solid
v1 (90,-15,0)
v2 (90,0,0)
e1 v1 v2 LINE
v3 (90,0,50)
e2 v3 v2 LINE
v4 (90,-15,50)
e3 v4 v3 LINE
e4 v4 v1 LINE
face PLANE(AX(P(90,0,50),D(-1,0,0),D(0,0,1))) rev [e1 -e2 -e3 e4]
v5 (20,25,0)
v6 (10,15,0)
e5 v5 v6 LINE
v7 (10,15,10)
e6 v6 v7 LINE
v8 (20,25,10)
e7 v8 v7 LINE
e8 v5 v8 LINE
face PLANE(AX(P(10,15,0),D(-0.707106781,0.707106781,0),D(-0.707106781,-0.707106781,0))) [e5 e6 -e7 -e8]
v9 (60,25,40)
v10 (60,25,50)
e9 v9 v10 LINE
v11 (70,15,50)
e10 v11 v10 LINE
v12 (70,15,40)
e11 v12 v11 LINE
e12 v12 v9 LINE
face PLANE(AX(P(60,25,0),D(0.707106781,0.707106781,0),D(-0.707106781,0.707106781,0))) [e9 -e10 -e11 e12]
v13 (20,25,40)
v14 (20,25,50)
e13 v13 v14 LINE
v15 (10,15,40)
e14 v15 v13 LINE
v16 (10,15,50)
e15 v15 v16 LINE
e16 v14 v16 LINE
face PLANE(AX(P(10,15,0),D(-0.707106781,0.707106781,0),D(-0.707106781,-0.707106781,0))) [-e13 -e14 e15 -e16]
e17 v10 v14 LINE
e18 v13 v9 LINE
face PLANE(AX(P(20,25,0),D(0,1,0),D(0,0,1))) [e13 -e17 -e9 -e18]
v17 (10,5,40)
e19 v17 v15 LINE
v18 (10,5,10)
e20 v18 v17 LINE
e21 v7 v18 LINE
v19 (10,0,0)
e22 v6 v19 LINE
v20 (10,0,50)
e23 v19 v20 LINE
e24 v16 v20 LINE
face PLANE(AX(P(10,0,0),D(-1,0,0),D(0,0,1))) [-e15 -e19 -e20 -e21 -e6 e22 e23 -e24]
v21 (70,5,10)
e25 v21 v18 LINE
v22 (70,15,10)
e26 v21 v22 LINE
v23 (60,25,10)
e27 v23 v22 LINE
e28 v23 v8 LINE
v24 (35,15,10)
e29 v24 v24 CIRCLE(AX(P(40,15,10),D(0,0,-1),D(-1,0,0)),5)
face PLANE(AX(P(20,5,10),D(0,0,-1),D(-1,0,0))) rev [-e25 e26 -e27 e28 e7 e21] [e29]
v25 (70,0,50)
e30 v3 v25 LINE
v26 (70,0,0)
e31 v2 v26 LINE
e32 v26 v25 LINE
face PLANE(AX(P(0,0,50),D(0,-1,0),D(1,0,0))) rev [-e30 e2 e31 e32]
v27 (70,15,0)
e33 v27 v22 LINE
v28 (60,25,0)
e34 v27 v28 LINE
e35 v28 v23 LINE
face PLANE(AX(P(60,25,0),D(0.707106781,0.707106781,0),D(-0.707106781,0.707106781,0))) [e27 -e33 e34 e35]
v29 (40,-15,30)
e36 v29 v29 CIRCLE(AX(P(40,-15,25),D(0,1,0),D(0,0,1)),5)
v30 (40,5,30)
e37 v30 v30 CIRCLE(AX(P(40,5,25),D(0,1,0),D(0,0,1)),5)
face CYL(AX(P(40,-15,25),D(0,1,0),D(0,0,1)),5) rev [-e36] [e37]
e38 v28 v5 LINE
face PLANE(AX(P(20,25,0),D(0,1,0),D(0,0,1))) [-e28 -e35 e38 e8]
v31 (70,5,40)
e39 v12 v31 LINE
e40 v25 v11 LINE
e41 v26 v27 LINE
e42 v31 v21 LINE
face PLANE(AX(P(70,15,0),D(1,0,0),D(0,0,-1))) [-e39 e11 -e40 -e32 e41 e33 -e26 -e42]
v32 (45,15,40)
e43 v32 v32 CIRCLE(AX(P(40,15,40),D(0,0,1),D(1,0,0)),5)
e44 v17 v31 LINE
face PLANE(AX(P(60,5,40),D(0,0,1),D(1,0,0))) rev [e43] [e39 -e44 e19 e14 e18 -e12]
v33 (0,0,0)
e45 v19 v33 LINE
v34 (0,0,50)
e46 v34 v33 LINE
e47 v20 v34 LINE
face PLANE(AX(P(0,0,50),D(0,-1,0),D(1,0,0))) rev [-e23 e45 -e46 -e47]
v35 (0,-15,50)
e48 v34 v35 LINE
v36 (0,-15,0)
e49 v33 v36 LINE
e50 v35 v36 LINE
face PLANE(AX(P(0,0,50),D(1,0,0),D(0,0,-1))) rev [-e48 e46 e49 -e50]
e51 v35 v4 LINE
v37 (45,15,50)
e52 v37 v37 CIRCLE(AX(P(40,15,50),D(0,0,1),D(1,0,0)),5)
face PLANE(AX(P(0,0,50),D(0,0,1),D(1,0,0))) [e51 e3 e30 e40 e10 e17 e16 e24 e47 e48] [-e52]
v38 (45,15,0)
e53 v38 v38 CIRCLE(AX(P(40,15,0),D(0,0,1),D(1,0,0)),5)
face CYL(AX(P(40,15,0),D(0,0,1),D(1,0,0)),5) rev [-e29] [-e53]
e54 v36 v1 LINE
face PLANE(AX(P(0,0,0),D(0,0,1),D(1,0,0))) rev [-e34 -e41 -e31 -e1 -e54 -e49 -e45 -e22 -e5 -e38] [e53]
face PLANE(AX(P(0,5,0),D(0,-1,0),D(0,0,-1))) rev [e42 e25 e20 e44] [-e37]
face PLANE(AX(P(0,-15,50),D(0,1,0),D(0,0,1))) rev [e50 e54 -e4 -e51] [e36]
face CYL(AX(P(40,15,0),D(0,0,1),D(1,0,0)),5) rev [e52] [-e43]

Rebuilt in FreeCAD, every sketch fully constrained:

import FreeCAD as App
import Part
import Sketcher


def add_polygon(sketch, points):
    """Adds a closed chain of lines whose ends are joined by coincident constraints."""
    first, n = sketch.GeometryCount, len(points)
    for a, b in zip(points, points[1:] + points[:1]):
        sketch.addGeometry(Part.LineSegment(App.Vector(*a, 0), App.Vector(*b, 0)), False)
    for i in range(n):
        sketch.addConstraint(Sketcher.Constraint("Coincident", first + i, 2, first + (i + 1) % n, 1))

doc = App.newDocument("Part")
body = doc.addObject("PartDesign::Body", "Body")

# Sketch on XY plane
sketch1 = body.newObject("Sketcher::SketchObject", "Sketch")
sketch1.AttachmentSupport = (doc.getObject("XY_Plane"), [""])
sketch1.MapMode = "FlatFace"
add_polygon(sketch1, [(0, 0), (0, -15), (90, -15), (90, 0)])  # lines 0-3
sketch1.addConstraint([
    Sketcher.Constraint("Vertical", 0),
    Sketcher.Constraint("Horizontal", 1),
    Sketcher.Constraint("Vertical", 2),
    Sketcher.Constraint("Horizontal", 3),
    Sketcher.Constraint("Coincident", 3, 2, -1, 1),
    Sketcher.Constraint("DistanceX", 1, 1, 1, 2, 90.0),
    Sketcher.Constraint("DistanceY", 0, 2, 0, 1, 15.0),
])
pad1 = body.newObject("PartDesign::Pad", "Pad")
pad1.Profile = sketch1
pad1.Length = 50

# Sketch on XY plane
sketch2 = body.newObject("Sketcher::SketchObject", "Sketch001")
sketch2.AttachmentSupport = (doc.getObject("XY_Plane"), [""])
sketch2.MapMode = "FlatFace"
sketch2.AttachmentOffset = App.Placement(App.Vector(0, 0, 50), App.Rotation())
add_polygon(sketch2, [(10, 15), (10, 0), (70, 0), (70, 15), (60, 25), (20, 25)])  # lines 0-5
sketch2.addConstraint([
    Sketcher.Constraint("Vertical", 0),
    Sketcher.Constraint("Horizontal", 1),
    Sketcher.Constraint("Vertical", 2),
    Sketcher.Constraint("Horizontal", 4),
    Sketcher.Constraint("PointOnObject", 0, 2, -1),
    Sketcher.Constraint("Perpendicular", 3, 5),
    Sketcher.Constraint("Horizontal", 2, 2, 5, 2),
    Sketcher.Constraint("Equal", 3, 5),
    Sketcher.Constraint("DistanceX", 1, 1, 1, 2, 60.0),
    Sketcher.Constraint("DistanceX", 4, 2, 4, 1, 40.0),
    Sketcher.Constraint("DistanceY", 0, 2, 0, 1, 15.0),
    Sketcher.Constraint("DistanceX", -1, 1, 0, 2, 10.0),
])
pad2 = body.newObject("PartDesign::Pad", "Pad001")
pad2.Profile = sketch2
pad2.Length = 50
pad2.Reversed = True

# Sketch on XZ plane
sketch3 = body.newObject("Sketcher::SketchObject", "Sketch002")
sketch3.AttachmentSupport = (doc.getObject("XZ_Plane"), [""])
sketch3.MapMode = "FlatFace"
sketch3.AttachmentOffset = App.Placement(App.Vector(0, 0, -25), App.Rotation())
add_polygon(sketch3, [(20, 10), (20, 40), (60, 40), (60, 10)])  # lines 0-3
sketch3.addConstraint([
    Sketcher.Constraint("Vertical", 0),
    Sketcher.Constraint("Horizontal", 1),
    Sketcher.Constraint("Vertical", 2),
    Sketcher.Constraint("Horizontal", 3),
    Sketcher.Constraint("DistanceX", 1, 1, 1, 2, 40.0),
    Sketcher.Constraint("DistanceY", 0, 1, 0, 2, 30.0),
    Sketcher.Constraint("DistanceX", -1, 1, 0, 2, 20.0),
    Sketcher.Constraint("DistanceY", -1, 1, 0, 2, 40.0),
])
pocket1 = body.newObject("PartDesign::Pocket", "Pocket")
pocket1.Profile = sketch3
pocket1.Length = 20
pocket1.Reversed = True

# Sketch on an angled plane
sketch4 = body.newObject("Sketcher::SketchObject", "Sketch003")
sketch4.Placement = App.Placement(App.Vector(42.5, 42.5, 0), App.Rotation(App.Vector(0, 0, -1), App.Vector(-0.707106781, 0.707106781, 0), App.Vector(0.707106781, 0.707106781, 0), "ZXY"))
add_polygon(sketch4, [(-40, -25), (-40, -39), (-10, -39), (-10, -25)])  # lines 0-3
sketch4.addConstraint([
    Sketcher.Constraint("Vertical", 0),
    Sketcher.Constraint("Horizontal", 1),
    Sketcher.Constraint("Vertical", 2),
    Sketcher.Constraint("Horizontal", 3),
    Sketcher.Constraint("DistanceX", 1, 1, 1, 2, 30.0),
    Sketcher.Constraint("DistanceX", 0, 2, -1, 1, 40.0),
    Sketcher.Constraint("DistanceY", 0, 2, 0, 1, 14.142136),
    Sketcher.Constraint("DistanceY", 0, 2, -1, 1, 38.890873),
])
pocket2 = body.newObject("PartDesign::Pocket", "Pocket001")
pocket2.Profile = sketch4
pocket2.Length = 14.142136

# Sketch on an angled plane
sketch5 = body.newObject("Sketcher::SketchObject", "Sketch004")
sketch5.Placement = App.Placement(App.Vector(42.5, 42.5, 0), App.Rotation(App.Vector(0, 0, -1), App.Vector(-0.707106781, 0.707106781, 0), App.Vector(0.707106781, 0.707106781, 0), "ZXY"))
add_polygon(sketch5, [(-40, -25), (-40, -39), (-10, -39), (-10, -25)])  # lines 0-3
sketch5.addConstraint([
    Sketcher.Constraint("Vertical", 0),
    Sketcher.Constraint("Horizontal", 1),
    Sketcher.Constraint("Vertical", 2),
    Sketcher.Constraint("Horizontal", 3),
    Sketcher.Constraint("DistanceX", 1, 1, 1, 2, 30.0),
    Sketcher.Constraint("DistanceX", 0, 2, -1, 1, 40.0),
    Sketcher.Constraint("DistanceY", 0, 2, 0, 1, 14.142136),
    Sketcher.Constraint("DistanceY", 0, 2, -1, 1, 38.890873),
])
pocket3 = body.newObject("PartDesign::Pocket", "Pocket002")
pocket3.Profile = sketch5
pocket3.Length = 90.791425
pocket3.Reversed = True

# Sketch on YZ plane
sketch6 = body.newObject("Sketcher::SketchObject", "Sketch005")
sketch6.AttachmentSupport = (doc.getObject("YZ_Plane"), [""])
sketch6.MapMode = "FlatFace"
sketch6.AttachmentOffset = App.Placement(App.Vector(0, 0, 70), App.Rotation())
add_polygon(sketch6, [(15, 40), (5, 40), (5, 10), (15, 10)])  # lines 0-3
sketch6.addConstraint([
    Sketcher.Constraint("Horizontal", 0),
    Sketcher.Constraint("Vertical", 1),
    Sketcher.Constraint("Horizontal", 2),
    Sketcher.Constraint("Vertical", 3),
    Sketcher.Constraint("DistanceX", 0, 2, 0, 1, 10.0),
    Sketcher.Constraint("DistanceY", 1, 2, 1, 1, 30.0),
    Sketcher.Constraint("DistanceX", -1, 1, 0, 2, 5.0),
    Sketcher.Constraint("DistanceY", -1, 1, 0, 2, 40.0),
])
pocket4 = body.newObject("PartDesign::Pocket", "Pocket003")
pocket4.Profile = sketch6
pocket4.Type = "ThroughAll"
pocket4.Midplane = True

# Sketch on an angled plane
sketch7 = body.newObject("Sketcher::SketchObject", "Sketch006")
sketch7.Placement = App.Placement(App.Vector(-2.5, 2.5, 0), App.Rotation(App.Vector(0, 0, 1), App.Vector(0.707106781, 0.707106781, 0), App.Vector(-0.707106781, 0.707106781, 0), "ZXY"))
add_polygon(sketch7, [(10, 32), (10, 18), (40, 18), (40, 32)])  # lines 0-3
sketch7.addConstraint([
    Sketcher.Constraint("Vertical", 0),
    Sketcher.Constraint("Horizontal", 1),
    Sketcher.Constraint("Vertical", 2),
    Sketcher.Constraint("Horizontal", 3),
    Sketcher.Constraint("DistanceX", 1, 1, 1, 2, 30.0),
    Sketcher.Constraint("DistanceX", -1, 1, 0, 2, 10.0),
    Sketcher.Constraint("DistanceY", 0, 2, 0, 1, 14.142136),
    Sketcher.Constraint("DistanceY", -1, 1, 0, 2, 17.67767),
])
pocket5 = body.newObject("PartDesign::Pocket", "Pocket004")
pocket5.Profile = sketch7
pocket5.Length = 21
pocket5.Midplane = True

# Sketch on XY plane
sketch8 = body.newObject("Sketcher::SketchObject", "Sketch007")
sketch8.AttachmentSupport = (doc.getObject("XY_Plane"), [""])
sketch8.MapMode = "FlatFace"
sketch8.AttachmentOffset = App.Placement(App.Vector(0, 0, 50), App.Rotation())
sketch8.addGeometry(Part.Circle(App.Vector(40, 15, 0), App.Vector(0, 0, 1), 5), False)
sketch8.addConstraint([
    Sketcher.Constraint("Diameter", 0, 10.0),
    Sketcher.Constraint("DistanceX", -1, 1, 0, 3, 40.0),
    Sketcher.Constraint("DistanceY", -1, 1, 0, 3, 15.0),
])
pocket6 = body.newObject("PartDesign::Pocket", "Pocket005")
pocket6.Profile = sketch8
pocket6.Type = "ThroughAll"
pocket6.Midplane = True

# Sketch on XZ plane
sketch9 = body.newObject("Sketcher::SketchObject", "Sketch008")
sketch9.AttachmentSupport = (doc.getObject("XZ_Plane"), [""])
sketch9.MapMode = "FlatFace"
sketch9.AttachmentOffset = App.Placement(App.Vector(0, 0, -5), App.Rotation())
sketch9.addGeometry(Part.Circle(App.Vector(40, 25, 0), App.Vector(0, 0, 1), 5), False)
sketch9.addConstraint([
    Sketcher.Constraint("Diameter", 0, 10.0),
    Sketcher.Constraint("DistanceX", -1, 1, 0, 3, 40.0),
    Sketcher.Constraint("DistanceY", -1, 1, 0, 3, 25.0),
])
pocket7 = body.newObject("PartDesign::Pocket", "Pocket006")
pocket7.Profile = sketch9
pocket7.Type = "ThroughAll"
pocket7.Midplane = True

doc.recompute()
